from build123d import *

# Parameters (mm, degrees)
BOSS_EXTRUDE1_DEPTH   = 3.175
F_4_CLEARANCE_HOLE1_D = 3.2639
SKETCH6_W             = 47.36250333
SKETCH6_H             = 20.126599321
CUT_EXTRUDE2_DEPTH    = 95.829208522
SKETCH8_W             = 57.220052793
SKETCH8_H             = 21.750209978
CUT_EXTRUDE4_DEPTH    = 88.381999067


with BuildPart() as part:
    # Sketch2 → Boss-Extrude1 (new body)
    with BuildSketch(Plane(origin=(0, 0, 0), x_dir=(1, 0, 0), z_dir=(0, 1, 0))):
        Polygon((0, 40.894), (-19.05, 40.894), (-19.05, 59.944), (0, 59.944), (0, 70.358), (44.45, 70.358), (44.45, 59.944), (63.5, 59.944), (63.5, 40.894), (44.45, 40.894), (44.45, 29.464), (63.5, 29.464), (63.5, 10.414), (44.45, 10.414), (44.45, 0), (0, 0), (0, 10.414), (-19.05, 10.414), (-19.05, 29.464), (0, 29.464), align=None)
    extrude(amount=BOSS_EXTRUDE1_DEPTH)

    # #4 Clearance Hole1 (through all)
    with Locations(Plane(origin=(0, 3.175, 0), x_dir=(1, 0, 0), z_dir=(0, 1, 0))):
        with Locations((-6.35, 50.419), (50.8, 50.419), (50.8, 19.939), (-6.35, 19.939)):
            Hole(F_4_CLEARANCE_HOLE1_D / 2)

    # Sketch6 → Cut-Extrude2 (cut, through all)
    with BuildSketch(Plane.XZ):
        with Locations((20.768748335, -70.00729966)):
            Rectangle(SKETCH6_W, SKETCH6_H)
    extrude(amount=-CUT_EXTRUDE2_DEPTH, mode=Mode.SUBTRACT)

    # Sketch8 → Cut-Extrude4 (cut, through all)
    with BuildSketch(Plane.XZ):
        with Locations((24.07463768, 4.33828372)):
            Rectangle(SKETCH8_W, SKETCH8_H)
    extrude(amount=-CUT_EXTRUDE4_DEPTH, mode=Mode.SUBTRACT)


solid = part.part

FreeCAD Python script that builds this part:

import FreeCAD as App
import Part
import Sketcher

V = App.Vector
Q = App.Units.Quantity


def add_polygon(sketch, points):
    """Adds a closed chain of lines whose ends are joined by coincident constraints."""
    first, n = sketch.GeometryCount, len(points)
    for a, b in zip(points, points[1:] + points[:1]):
        sketch.addGeometry(Part.LineSegment(App.Vector(*a, 0), App.Vector(*b, 0)), False)
    for i in range(n):
        sketch.addConstraint(Sketcher.Constraint("Coincident", first + i, 2, first + (i + 1) % n, 1))

doc = App.newDocument("Part")
params = doc.addObject("Spreadsheet::Sheet", "Params")
for row, (alias, value) in enumerate([
    ("sketch1_width", "0.75 in"),
    ("sketch1_width2", "1.75 in"),
    ("sketch1_height", "0.45 in"),
    ("sketch1_height2", "0.41 in"),
    ("pad1_length", "0.125 in"),
    ("hole_diameter", "0.1285 in"),
], start=1):
    params.set(f"A{row}", alias)
    params.set(f"B{row}", "=" + value)
    params.setAlias(f"B{row}", alias)

body = doc.addObject("PartDesign::Body", "Body")

sketch1 = body.newObject("Sketcher::SketchObject", "Sketch")
sketch1.AttachmentSupport = (doc.getObject("XZ_Plane"), [""])
sketch1.MapMode = "FlatFace"
add_polygon(sketch1, [(-19.05, -40.894), (0, -40.894), (0, -29.464), (-19.05, -29.464), (-19.05, -10.414), (0, -10.414), (0, 0), (44.45, 0), (44.45, -10.414), (63.5, -10.414), (63.5, -29.464), (44.45, -29.464), (44.45, -40.894), (63.5, -40.894), (63.5, -59.944), (44.45, -59.944), (44.45, -70.358), (0, -70.358), (0, -59.944), (-19.05, -59.944)])
sketch1.addConstraint([
    Sketcher.Constraint("Horizontal", 0),
    Sketcher.Constraint("Vertical", 1),
    Sketcher.Constraint("Horizontal", 2),
    Sketcher.Constraint("Vertical", 3),
    Sketcher.Constraint("Horizontal", 4),
    Sketcher.Constraint("Vertical", 5),
    Sketcher.Constraint("Horizontal", 6),
    Sketcher.Constraint("Vertical", 7),
    Sketcher.Constraint("Horizontal", 8),
    Sketcher.Constraint("Vertical", 9),
    Sketcher.Constraint("Horizontal", 10),
    Sketcher.Constraint("Vertical", 11),
    Sketcher.Constraint("Horizontal", 12),
    Sketcher.Constraint("Vertical", 13),
    Sketcher.Constraint("Horizontal", 14),
    Sketcher.Constraint("Vertical", 15),
    Sketcher.Constraint("Horizontal", 16),
    Sketcher.Constraint("Vertical", 17),
    Sketcher.Constraint("Horizontal", 18),
    Sketcher.Constraint("Vertical", 19),
    Sketcher.Constraint("Coincident", 5, 2, -1, 1),
    Sketcher.Constraint("PointOnObject", 0, 2, -2),
    Sketcher.Constraint("PointOnObject", 16, 2, -2),
    Sketcher.Constraint("Horizontal", 4, 2, 7, 2),
    Sketcher.Constraint("Horizontal", 2, 2, 9, 2),
    Sketcher.Constraint("Horizontal", 0, 2, 11, 2),
    Sketcher.Constraint("Horizontal", 14, 2, 17, 2),
    Sketcher.Constraint("Vertical", 7, 2, 10, 2),
    Sketcher.Constraint("Vertical", 9, 2, 12, 2),
    Sketcher.Constraint("Vertical", 11, 2, 14, 2),
    Sketcher.Constraint("Vertical", 3, 2, 18, 2),
    Sketcher.Constraint("Equal", 4, 8),
    Sketcher.Constraint("Equal", 18, 3),
    Sketcher.Constraint("Equal", 9, 13),
    Sketcher.Constraint("Equal", 7, 15),
    Sketcher.Constraint("DistanceX", 0, 1, 0, 2, Q("0.75 in")),
    Sketcher.Constraint("DistanceX", 6, 1, 6, 2, Q("1.75 in")),
    Sketcher.Constraint("DistanceY", 1, 1, 1, 2, Q("0.45 in")),
    Sketcher.Constraint("DistanceY", 5, 1, 5, 2, Q("0.41 in")),
])
sketch1.setExpression("Constraints[55]", "Params.sketch1_width")
sketch1.setExpression("Constraints[56]", "Params.sketch1_width2")
sketch1.setExpression("Constraints[57]", "Params.sketch1_height")
sketch1.setExpression("Constraints[58]", "Params.sketch1_height2")
pad1 = body.newObject("PartDesign::Pad", "Pad")
pad1.Profile = sketch1
pad1.setExpression("Length", "Params.pad1_length")
pad1.Reversed = True

sketch2 = body.newObject("Sketcher::SketchObject", "Sketch001")
sketch2.AttachmentSupport = (doc.getObject("XZ_Plane"), [""])
sketch2.MapMode = "FlatFace"
sketch2.AttachmentOffset = App.Placement(V(0, 0, -0.125 * 25.4), App.Rotation())
sketch2.addGeometry([
    Part.Circle(V(-6.35, -50.419, 0), V(0, 0, 1), 1.63195),
    Part.Circle(V(50.8, -50.419, 0), V(0, 0, 1), 1.63195),
    Part.Circle(V(50.8, -19.939, 0), V(0, 0, 1), 1.63195),
    Part.Circle(V(-6.35, -19.939, 0), V(0, 0, 1), 1.63195),
], False)
sketch2.addConstraint([
    Sketcher.Constraint("Equal", 0, 1),
    Sketcher.Constraint("Equal", 1, 2),
    Sketcher.Constraint("Equal", 2, 3),
    Sketcher.Constraint("Horizontal", 0, 3, 1, 3),
    Sketcher.Constraint("Horizontal", 2, 3, 3, 3),
    Sketcher.Constraint("Vertical", 1, 3, 2, 3),
    Sketcher.Constraint("Vertical", 0, 3, 3, 3),
    Sketcher.Constraint("DistanceX", -1, 1, 1, 3, Q("2 in")),
    Sketcher.Constraint("Diameter", 0, Q("0.1285 in")),
    Sketcher.Constraint("DistanceY", 1, 3, 2, 3, Q("1.2 in")),
    Sketcher.Constraint("DistanceX", 0, 3, -1, 1, Q("0.25 in")),
    Sketcher.Constraint("DistanceY", 0, 3, -1, 1, Q("1.985 in")),
])
doc.recompute()
hole = body.newObject("PartDesign::Hole", "Hole")
hole.Profile = sketch2
hole.ThreadType = "None"
hole.setExpression("Diameter", "Params.hole_diameter")
hole.DepthType = "ThroughAll"
hole.Reversed = True

sketch3 = body.newObject("Sketcher::SketchObject", "Sketch002")
sketch3.AttachmentSupport = (doc.getObject("XZ_Plane"), [""])
sketch3.MapMode = "FlatFace"
add_polygon(sketch3, [(-2.912503, -59.944), (-2.912503, -80.070599), (44.45, -80.070599), (44.45, -59.944)])
sketch3.addConstraint([
    Sketcher.Constraint("Vertical", 0),
    Sketcher.Constraint("Horizontal", 1),
    Sketcher.Constraint("Vertical", 2),
    Sketcher.Constraint("Horizontal", 3),
    Sketcher.Constraint("DistanceX", -1, 1, 1, 2, Q("1.75 in")),
    Sketcher.Constraint("DistanceY", 2, 2, -1, 1, Q("2.36 in")),
    Sketcher.Constraint("DistanceY", 0, 2, 0, 1, 20.126599),
    Sketcher.Constraint("DistanceX", 1, 1, 1, 2, 47.362503),
])
pocket1 = body.newObject("PartDesign::Pocket", "Pocket")
pocket1.Profile = sketch3
pocket1.Type = "ThroughAll"

sketch4 = body.newObject("Sketcher::SketchObject", "Sketch003")
sketch4.AttachmentSupport = (doc.getObject("XZ_Plane"), [""])
sketch4.MapMode = "FlatFace"
add_polygon(sketch4, [(-4.535389, 15.213389), (-4.535389, -6.536821), (52.684664, -6.536821), (52.684664, 15.213389)])
sketch4.addConstraint([
    Sketcher.Constraint("Vertical", 0),
    Sketcher.Constraint("Horizontal", 1),
    Sketcher.Constraint("Vertical", 2),
    Sketcher.Constraint("Horizontal", 3),
    Sketcher.Constraint("DistanceY", 0, 2, 0, 1, 21.75021),
    Sketcher.Constraint("DistanceX", 1, 1, 1, 2, 57.220053),
    Sketcher.Constraint("DistanceX", 0, 2, -1, 1, 4.535389),
    Sketcher.Constraint("DistanceY", 0, 2, -1, 1, 6.536821),
])
pocket2 = body.newObject("PartDesign::Pocket", "Pocket001")
pocket2.Profile = sketch4
pocket2.Type = "ThroughAll"

doc.recompute()
